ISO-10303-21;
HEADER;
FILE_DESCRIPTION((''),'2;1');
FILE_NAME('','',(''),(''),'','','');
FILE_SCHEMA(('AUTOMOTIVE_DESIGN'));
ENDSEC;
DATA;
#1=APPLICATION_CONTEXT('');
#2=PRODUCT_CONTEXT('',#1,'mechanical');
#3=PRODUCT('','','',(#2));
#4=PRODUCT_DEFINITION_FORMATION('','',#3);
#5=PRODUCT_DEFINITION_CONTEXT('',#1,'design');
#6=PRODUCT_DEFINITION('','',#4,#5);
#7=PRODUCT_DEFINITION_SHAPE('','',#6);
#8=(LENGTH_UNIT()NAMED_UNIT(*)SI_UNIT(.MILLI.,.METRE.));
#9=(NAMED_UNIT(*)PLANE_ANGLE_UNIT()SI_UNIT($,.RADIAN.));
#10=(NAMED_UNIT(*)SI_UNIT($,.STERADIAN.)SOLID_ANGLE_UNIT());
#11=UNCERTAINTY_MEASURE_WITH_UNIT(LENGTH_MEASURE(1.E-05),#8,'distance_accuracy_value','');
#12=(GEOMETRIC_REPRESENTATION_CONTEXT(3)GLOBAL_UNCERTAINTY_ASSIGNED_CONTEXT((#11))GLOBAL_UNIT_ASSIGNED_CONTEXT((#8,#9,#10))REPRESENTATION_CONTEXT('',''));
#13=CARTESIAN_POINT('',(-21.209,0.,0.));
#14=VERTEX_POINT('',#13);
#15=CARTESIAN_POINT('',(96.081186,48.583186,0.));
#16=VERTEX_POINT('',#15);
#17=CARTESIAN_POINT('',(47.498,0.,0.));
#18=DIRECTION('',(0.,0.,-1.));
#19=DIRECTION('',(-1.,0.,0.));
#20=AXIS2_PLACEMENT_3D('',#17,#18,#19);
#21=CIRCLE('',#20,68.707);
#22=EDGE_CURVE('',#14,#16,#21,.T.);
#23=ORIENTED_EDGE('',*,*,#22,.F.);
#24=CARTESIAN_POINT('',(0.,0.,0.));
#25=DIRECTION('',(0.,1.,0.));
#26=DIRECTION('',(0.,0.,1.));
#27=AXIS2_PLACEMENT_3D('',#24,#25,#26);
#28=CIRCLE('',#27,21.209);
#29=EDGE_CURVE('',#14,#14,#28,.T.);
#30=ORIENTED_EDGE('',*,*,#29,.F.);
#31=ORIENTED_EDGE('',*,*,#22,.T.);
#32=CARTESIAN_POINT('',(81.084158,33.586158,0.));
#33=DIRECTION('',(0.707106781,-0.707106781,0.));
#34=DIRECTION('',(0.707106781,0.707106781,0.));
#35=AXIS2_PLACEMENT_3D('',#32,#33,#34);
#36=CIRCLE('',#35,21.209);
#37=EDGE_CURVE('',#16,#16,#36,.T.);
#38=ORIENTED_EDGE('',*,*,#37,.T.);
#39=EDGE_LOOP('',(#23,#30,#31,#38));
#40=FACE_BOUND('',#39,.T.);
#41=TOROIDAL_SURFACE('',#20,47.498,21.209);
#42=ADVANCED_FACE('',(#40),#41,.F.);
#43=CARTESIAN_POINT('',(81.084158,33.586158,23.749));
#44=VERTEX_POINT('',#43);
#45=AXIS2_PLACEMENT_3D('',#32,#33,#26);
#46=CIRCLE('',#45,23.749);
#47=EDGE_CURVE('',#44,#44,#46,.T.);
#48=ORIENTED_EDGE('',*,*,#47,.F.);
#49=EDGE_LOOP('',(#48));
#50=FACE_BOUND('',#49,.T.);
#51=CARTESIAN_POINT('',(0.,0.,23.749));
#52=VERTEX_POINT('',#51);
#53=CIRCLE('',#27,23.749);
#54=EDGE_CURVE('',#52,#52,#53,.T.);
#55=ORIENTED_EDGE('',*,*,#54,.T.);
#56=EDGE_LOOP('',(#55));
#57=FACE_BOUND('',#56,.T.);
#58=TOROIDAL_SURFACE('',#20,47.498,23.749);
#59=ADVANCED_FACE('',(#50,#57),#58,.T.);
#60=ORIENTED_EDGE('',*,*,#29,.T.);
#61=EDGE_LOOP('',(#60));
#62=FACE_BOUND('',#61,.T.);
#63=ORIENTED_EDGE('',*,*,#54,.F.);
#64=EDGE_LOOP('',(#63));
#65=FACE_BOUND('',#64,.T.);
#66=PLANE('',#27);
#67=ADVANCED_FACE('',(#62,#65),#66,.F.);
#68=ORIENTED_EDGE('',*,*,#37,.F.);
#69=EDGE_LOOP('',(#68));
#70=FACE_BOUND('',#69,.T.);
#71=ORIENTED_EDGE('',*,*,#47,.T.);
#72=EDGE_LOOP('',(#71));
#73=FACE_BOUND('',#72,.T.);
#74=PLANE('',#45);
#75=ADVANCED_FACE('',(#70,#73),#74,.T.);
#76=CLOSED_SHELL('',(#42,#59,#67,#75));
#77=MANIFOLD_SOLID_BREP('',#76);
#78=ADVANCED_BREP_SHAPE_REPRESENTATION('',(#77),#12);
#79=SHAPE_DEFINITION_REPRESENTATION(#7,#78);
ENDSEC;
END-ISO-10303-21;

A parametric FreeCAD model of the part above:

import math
import FreeCAD as App
import Part
import Sketcher
Q = App.Units.Quantity


def faces_at(feature, points):
    """Names of the faces that lie closest to the given points."""
    faces = feature.Shape.Faces
    near = lambda p: min(range(len(faces)), key=lambda i: faces[i].distToShape(Part.Vertex(*p))[0])
    return sorted({f"Face{near(p) + 1}" for p in points})

doc = App.newDocument("Part")
body = doc.addObject("PartDesign::Body", "Body")

sketch1 = body.newObject("Sketcher::SketchObject", "Sketch")
sketch1.AttachmentSupport = (doc.getObject("XZ_Plane"), [""])
sketch1.MapMode = "FlatFace"
sketch1.addGeometry(Part.Circle(App.Vector(0, 0, 0), App.Vector(0, 0, 1), 23.749), False)
sketch1.addConstraint([
    Sketcher.Constraint("Coincident", 0, 3, -1, 1),
    Sketcher.Constraint("Diameter", 0, Q("1.87 in")),
])

sketch2 = body.newObject("Sketcher::SketchObject", "Sketch001")
sketch2.AttachmentSupport = (doc.getObject("XY_Plane"), [""])
sketch2.MapMode = "FlatFace"
sketch2.addGeometry(Part.ArcOfCircle(Part.Circle(App.Vector(47.498, 0, 0), App.Vector(0, 0, 1), 47.498), math.radians(45), math.radians(180)), False)
sketch2.addConstraint([
    Sketcher.Constraint("Coincident", 0, 2, -1, 1),
    Sketcher.Constraint("PointOnObject", 0, 3, -1),
    Sketcher.Constraint("Radius", 0, Q("1.87 in")),
    Sketcher.Constraint("DistanceX", -1, 1, 0, 1, 81.084158),
])
doc.recompute()

additivepipe = body.newObject("PartDesign::AdditivePipe", "AdditivePipe")
additivepipe.Profile = sketch1
additivepipe.Spine = (sketch2, ["Edge1"])
doc.recompute()

thickness = body.newObject("PartDesign::Thickness", "Thickness")
thickness.Base = (additivepipe, faces_at(additivepipe, [(81.084, 33.586, 0), (0, 0, 0)]))
thickness.Value = Q("0.1 in")
thickness.Reversed = True
thickness.Join = "Intersection"

doc.recompute()
